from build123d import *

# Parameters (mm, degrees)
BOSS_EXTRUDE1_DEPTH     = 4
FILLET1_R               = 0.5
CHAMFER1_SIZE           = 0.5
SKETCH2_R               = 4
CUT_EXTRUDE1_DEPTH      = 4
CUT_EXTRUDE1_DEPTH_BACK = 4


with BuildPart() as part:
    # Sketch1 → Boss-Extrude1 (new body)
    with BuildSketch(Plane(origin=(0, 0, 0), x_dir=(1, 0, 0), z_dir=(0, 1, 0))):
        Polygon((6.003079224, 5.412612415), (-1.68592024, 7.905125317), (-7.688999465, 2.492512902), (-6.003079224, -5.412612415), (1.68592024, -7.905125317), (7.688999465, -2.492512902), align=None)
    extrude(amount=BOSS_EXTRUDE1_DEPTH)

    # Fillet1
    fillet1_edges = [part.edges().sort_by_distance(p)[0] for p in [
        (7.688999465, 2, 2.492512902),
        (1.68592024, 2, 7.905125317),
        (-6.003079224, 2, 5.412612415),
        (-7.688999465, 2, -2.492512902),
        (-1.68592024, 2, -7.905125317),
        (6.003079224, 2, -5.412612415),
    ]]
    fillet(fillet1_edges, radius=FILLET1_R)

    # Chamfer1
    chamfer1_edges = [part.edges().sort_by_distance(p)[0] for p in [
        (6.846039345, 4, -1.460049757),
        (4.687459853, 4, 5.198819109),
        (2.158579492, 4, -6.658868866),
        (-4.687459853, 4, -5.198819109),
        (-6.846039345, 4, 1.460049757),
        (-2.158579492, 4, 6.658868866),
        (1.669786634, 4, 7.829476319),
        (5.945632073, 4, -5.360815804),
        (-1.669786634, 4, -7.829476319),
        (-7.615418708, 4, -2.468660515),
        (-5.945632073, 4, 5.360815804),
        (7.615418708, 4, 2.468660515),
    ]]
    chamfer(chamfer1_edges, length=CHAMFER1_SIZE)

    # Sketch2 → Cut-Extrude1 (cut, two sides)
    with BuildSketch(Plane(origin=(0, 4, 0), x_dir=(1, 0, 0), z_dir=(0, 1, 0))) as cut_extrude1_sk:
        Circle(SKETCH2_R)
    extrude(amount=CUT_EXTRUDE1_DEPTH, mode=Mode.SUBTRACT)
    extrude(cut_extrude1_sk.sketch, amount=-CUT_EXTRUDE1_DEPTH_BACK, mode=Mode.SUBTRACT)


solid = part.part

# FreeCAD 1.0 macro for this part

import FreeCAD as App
import Part
import Sketcher


def edges_at(feature, points):
    """Names of the edges that pass closest to the given points."""
    edges = feature.Shape.Edges
    near = lambda p: min(range(len(edges)), key=lambda i: edges[i].distToShape(Part.Vertex(*p))[0])
    return sorted({f"Edge{near(p) + 1}" for p in points})


def add_polygon(sketch, points):
    """Adds a closed chain of lines whose ends are joined by coincident constraints."""
    first, n = sketch.GeometryCount, len(points)
    for a, b in zip(points, points[1:] + points[:1]):
        sketch.addGeometry(Part.LineSegment(App.Vector(*a, 0), App.Vector(*b, 0)), False)
    for i in range(n):
        sketch.addConstraint(Sketcher.Constraint("Coincident", first + i, 2, first + (i + 1) % n, 1))

doc = App.newDocument("Part")
body = doc.addObject("PartDesign::Body", "Body")

# Sketch on XZ plane
sketch1 = doc.addObject("Sketcher::SketchObject", "Sketch")
body.addObject(sketch1)
sketch1.AttachmentSupport = (doc.XZ_Plane, [""])
sketch1.MapMode = "FlatFace"
add_polygon(sketch1, [(6, -5), (-2, -8), (-8, -2), (-6, 5), (2, 8), (8, 2)])  # lines 0-5
sketch1.addConstraint([
    Sketcher.Constraint("Symmetric", 0, 2, 3, 2, -1, 1),
    Sketcher.Constraint("Symmetric", 1, 2, 4, 2, -1, 1),
    Sketcher.Constraint("Symmetric", 2, 2, 5, 2, -1, 1),
    Sketcher.Constraint("Equal", 0, 1),
    Sketcher.Constraint("Equal", 1, 2),
    Sketcher.Constraint("DistanceX", 1, 2, -1, 1, 7.688999),
    Sketcher.Constraint("DistanceX", 2, 2, 3, 2, 7.688999),
    Sketcher.Constraint("DistanceY", 4, 2, 2, 2, 2.9201),
    Sketcher.Constraint("DistanceX", 0, 2, -1, 1, 1.68592),
])
pad1 = doc.addObject("PartDesign::Pad", "Pad")
body.addObject(pad1)
pad1.Profile = sketch1
pad1.Length = 4
pad1.Reversed = True
doc.recompute()

fillet = doc.addObject("PartDesign::Fillet", "Fillet")
body.addObject(fillet)
fillet.Base = (pad1, edges_at(pad1, [
    (7.689, 2, 2.493),
    (1.686, 2, 7.905),
    (-6.003, 2, 5.413),
    (-7.689, 2, -2.493),
    (-1.686, 2, -7.905),
    (6.003, 2, -5.413),
]))
fillet.Radius = 0.5
doc.recompute()

chamfer = doc.addObject("PartDesign::Chamfer", "Chamfer")
body.addObject(chamfer)
chamfer.Base = (fillet, edges_at(fillet, [
    (6.846, 4, -1.46),
    (4.687, 4, 5.199),
    (2.159, 4, -6.659),
    (-4.687, 4, -5.199),
    (-6.846, 4, 1.46),
    (-2.159, 4, 6.659),
    (1.67, 4, 7.829),
    (5.946, 4, -5.361),
    (-1.67, 4, -7.829),
    (-7.615, 4, -2.469),
    (-5.946, 4, 5.361),
    (7.615, 4, 2.469),
]))
chamfer.Size = 0.5

# Sketch on XZ plane
sketch2 = doc.addObject("Sketcher::SketchObject", "Sketch001")
body.addObject(sketch2)
sketch2.AttachmentSupport = (doc.XZ_Plane, [""])
sketch2.MapMode = "FlatFace"
sketch2.AttachmentOffset = App.Placement(App.Vector(0, 0, -4), App.Rotation())
sketch2.addGeometry(Part.Circle(App.Vector(0, 0, 0), App.Vector(0, 0, 1), 4), False)
sketch2.addConstraint([
    Sketcher.Constraint("Coincident", 0, 3, -1, 1),
    Sketcher.Constraint("Diameter", 0, 8.0),
])
pocket1 = doc.addObject("PartDesign::Pocket", "Pocket")
body.addObject(pocket1)
pocket1.Profile = sketch2
pocket1.Type = "ThroughAll"
pocket1.Midplane = True

doc.recompute()
